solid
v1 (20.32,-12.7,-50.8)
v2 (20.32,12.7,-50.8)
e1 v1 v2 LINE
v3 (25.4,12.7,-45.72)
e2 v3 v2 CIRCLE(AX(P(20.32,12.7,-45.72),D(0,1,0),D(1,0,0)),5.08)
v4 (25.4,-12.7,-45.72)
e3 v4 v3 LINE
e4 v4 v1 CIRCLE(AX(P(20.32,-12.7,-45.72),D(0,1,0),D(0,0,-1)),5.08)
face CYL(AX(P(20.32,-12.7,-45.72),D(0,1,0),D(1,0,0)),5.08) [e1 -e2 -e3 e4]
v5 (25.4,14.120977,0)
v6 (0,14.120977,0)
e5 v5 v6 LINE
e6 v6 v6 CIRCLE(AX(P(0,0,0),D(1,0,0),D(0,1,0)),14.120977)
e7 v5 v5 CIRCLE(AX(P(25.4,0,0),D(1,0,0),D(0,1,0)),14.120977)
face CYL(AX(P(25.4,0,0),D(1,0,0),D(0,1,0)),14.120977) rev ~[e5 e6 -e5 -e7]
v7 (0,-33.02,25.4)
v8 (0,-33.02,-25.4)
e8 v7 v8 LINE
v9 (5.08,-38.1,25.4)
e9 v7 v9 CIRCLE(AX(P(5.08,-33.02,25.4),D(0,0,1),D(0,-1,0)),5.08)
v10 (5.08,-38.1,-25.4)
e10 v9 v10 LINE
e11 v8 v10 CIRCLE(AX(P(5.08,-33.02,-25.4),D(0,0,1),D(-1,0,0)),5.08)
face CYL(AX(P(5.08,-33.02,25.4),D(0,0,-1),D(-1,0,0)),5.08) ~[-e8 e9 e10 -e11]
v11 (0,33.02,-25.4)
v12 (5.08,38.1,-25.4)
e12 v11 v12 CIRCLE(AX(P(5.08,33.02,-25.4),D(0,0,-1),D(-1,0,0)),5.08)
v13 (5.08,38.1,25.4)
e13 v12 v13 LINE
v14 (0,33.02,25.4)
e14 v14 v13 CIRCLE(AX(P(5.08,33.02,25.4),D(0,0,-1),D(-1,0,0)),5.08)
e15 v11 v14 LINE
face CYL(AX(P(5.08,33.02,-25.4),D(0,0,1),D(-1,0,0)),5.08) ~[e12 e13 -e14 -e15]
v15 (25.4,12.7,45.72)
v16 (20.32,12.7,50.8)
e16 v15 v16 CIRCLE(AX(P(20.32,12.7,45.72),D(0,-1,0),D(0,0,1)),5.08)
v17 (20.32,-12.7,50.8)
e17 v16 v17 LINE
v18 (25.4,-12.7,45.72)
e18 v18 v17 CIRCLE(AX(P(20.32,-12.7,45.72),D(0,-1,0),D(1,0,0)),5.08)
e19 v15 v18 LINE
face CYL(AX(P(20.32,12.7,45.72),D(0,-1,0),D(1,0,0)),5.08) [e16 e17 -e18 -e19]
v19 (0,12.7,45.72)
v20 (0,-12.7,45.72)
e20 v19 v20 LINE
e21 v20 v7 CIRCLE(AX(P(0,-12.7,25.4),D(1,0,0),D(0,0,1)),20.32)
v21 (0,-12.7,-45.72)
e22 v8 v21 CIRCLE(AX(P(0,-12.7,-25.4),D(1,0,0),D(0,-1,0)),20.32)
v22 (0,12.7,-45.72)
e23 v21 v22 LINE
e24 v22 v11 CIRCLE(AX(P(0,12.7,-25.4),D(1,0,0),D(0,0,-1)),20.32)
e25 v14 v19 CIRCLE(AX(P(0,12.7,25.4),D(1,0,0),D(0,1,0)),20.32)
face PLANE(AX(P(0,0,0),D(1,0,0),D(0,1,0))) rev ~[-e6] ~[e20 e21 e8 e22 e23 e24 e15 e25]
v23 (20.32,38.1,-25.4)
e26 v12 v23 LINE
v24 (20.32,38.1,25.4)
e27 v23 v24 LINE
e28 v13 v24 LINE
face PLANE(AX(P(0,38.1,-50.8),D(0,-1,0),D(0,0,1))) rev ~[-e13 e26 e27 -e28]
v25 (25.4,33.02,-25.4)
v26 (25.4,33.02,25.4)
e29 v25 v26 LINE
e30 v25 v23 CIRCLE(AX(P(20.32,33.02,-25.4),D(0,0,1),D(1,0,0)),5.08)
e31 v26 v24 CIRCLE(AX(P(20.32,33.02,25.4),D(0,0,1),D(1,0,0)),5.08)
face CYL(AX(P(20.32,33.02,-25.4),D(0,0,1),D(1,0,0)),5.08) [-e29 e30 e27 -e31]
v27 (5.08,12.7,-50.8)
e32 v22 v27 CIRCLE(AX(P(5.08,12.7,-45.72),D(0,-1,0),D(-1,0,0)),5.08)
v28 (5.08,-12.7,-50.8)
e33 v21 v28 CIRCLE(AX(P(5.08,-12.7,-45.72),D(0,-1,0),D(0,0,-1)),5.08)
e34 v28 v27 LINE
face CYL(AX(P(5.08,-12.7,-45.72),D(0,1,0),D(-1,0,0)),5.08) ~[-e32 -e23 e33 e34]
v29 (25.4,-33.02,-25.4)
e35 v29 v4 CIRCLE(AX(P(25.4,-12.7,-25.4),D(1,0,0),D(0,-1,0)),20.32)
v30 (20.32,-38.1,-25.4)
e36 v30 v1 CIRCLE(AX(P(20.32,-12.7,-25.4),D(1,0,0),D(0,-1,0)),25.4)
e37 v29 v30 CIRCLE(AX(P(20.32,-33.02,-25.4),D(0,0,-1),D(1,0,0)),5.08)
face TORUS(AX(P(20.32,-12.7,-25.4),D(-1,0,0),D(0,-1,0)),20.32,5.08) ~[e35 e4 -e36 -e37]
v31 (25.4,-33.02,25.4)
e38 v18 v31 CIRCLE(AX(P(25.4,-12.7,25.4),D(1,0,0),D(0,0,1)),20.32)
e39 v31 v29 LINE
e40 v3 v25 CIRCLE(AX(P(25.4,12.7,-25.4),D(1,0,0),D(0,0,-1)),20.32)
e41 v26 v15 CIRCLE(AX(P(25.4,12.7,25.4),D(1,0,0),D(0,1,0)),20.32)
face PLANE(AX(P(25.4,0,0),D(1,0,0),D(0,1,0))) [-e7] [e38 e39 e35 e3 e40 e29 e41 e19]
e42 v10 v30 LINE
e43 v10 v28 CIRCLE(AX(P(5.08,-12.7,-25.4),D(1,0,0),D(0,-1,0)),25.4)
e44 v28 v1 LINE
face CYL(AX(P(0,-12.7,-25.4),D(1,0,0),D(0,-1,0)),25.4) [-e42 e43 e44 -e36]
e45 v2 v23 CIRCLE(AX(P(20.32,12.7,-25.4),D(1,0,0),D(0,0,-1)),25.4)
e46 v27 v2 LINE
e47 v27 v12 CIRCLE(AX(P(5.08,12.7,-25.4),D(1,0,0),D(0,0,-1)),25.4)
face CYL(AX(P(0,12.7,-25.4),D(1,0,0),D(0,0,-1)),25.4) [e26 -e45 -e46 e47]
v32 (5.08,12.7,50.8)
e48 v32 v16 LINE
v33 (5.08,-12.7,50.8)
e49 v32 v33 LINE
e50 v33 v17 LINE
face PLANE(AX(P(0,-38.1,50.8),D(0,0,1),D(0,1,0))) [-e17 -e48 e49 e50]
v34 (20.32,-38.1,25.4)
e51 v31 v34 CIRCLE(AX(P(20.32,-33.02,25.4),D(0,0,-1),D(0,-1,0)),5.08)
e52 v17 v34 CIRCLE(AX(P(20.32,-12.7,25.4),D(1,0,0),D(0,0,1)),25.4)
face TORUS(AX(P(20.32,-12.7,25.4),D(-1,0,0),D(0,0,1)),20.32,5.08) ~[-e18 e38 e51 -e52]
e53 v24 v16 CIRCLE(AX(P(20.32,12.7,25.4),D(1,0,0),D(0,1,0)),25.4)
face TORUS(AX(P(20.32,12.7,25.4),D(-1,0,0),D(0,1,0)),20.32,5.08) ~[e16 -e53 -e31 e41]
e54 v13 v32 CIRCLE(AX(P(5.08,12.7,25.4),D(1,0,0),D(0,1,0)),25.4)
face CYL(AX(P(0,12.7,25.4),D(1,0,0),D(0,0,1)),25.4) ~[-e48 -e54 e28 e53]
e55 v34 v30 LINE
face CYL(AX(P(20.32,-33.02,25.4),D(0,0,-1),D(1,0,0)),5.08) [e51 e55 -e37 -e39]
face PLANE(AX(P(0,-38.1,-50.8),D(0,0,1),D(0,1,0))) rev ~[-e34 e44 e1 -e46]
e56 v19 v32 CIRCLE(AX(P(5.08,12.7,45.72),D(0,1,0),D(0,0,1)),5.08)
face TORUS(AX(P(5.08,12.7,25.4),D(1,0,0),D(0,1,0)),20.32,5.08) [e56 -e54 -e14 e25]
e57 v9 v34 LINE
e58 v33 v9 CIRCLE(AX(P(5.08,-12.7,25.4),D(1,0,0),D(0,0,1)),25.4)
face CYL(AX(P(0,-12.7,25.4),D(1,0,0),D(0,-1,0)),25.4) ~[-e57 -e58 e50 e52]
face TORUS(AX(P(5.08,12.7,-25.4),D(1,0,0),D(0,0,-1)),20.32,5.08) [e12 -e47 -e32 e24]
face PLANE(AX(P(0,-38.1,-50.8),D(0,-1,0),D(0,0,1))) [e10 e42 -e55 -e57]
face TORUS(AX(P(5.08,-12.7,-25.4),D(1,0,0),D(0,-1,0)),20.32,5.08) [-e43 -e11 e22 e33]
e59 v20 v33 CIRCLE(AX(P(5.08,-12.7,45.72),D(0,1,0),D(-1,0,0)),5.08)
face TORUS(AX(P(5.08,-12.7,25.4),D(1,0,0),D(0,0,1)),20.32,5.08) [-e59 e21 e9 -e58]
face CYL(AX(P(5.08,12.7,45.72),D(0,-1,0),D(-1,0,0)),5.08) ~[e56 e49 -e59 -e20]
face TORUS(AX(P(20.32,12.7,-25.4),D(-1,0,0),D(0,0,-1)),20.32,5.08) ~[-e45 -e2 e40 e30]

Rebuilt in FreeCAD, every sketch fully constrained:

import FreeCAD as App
import Part
import Sketcher
Q = App.Units.Quantity


def edges_at(feature, points):
    """Names of the edges that pass closest to the given points."""
    edges = feature.Shape.Edges
    near = lambda p: min(range(len(edges)), key=lambda i: edges[i].distToShape(Part.Vertex(*p))[0])
    return sorted({f"Edge{near(p) + 1}" for p in points})


def add_polygon(sketch, points):
    """Adds a closed chain of lines whose ends are joined by coincident constraints."""
    first, n = sketch.GeometryCount, len(points)
    for a, b in zip(points, points[1:] + points[:1]):
        sketch.addGeometry(Part.LineSegment(App.Vector(*a, 0), App.Vector(*b, 0)), False)
    for i in range(n):
        sketch.addConstraint(Sketcher.Constraint("Coincident", first + i, 2, first + (i + 1) % n, 1))

doc = App.newDocument("Part")
body = doc.addObject("PartDesign::Body", "Body")

# Sketch on YZ plane
sketch1 = body.newObject("Sketcher::SketchObject", "Sketch")
sketch1.AttachmentSupport = (doc.getObject("YZ_Plane"), [""])
sketch1.MapMode = "FlatFace"
add_polygon(sketch1, [(-38, 51), (-38, -51), (38, -51), (38, 51)])  # lines 0-3
sketch1.addConstraint([
    Sketcher.Constraint("Vertical", 0),
    Sketcher.Constraint("Horizontal", 1),
    Sketcher.Constraint("Vertical", 2),
    Sketcher.Constraint("Horizontal", 3),
    Sketcher.Constraint("Symmetric", 0, 2, 2, 2, -1, 1),
    Sketcher.Constraint("DistanceX", 1, 1, 1, 2, Q("3 in")),
    Sketcher.Constraint("DistanceY", 0, 2, 0, 1, Q("4 in")),
])
pad1 = body.newObject("PartDesign::Pad", "Pad")
pad1.Profile = sketch1
pad1.Length = Q("1 in")

# Sketch on YZ plane
sketch2 = body.newObject("Sketcher::SketchObject", "Sketch001")
sketch2.AttachmentSupport = (doc.getObject("YZ_Plane"), [""])
sketch2.MapMode = "FlatFace"
sketch2.AttachmentOffset = App.Placement(App.Vector(0, 0, 1 * 25.4), App.Rotation())
sketch2.addGeometry(Part.Circle(App.Vector(0, 0, 0), App.Vector(0, 0, 1), 14), False)
sketch2.addConstraint([
    Sketcher.Constraint("Coincident", 0, 3, -1, 1),
    Sketcher.Constraint("Diameter", 0, 28.241954),
])
pocket1 = body.newObject("PartDesign::Pocket", "Pocket")
pocket1.Profile = sketch2
pocket1.Length = Q("1 in")
doc.recompute()

fillet = body.newObject("PartDesign::Fillet", "Fillet")
fillet.Base = (pocket1, edges_at(pocket1, [
    (12.7, -38.1, 50.8),
    (12.7, -38.1, -50.8),
    (12.7, 38.1, 50.8),
    (12.7, 38.1, -50.8),
]))
fillet.Radius = Q("1 in")
doc.recompute()

fillet2 = body.newObject("PartDesign::Fillet", "Fillet001")
fillet2.Base = (fillet, edges_at(fillet, [(25.4, 38.1, 0), (0, 38.1, 0)]))
fillet2.Radius = Q("0.2 in")

doc.recompute()
